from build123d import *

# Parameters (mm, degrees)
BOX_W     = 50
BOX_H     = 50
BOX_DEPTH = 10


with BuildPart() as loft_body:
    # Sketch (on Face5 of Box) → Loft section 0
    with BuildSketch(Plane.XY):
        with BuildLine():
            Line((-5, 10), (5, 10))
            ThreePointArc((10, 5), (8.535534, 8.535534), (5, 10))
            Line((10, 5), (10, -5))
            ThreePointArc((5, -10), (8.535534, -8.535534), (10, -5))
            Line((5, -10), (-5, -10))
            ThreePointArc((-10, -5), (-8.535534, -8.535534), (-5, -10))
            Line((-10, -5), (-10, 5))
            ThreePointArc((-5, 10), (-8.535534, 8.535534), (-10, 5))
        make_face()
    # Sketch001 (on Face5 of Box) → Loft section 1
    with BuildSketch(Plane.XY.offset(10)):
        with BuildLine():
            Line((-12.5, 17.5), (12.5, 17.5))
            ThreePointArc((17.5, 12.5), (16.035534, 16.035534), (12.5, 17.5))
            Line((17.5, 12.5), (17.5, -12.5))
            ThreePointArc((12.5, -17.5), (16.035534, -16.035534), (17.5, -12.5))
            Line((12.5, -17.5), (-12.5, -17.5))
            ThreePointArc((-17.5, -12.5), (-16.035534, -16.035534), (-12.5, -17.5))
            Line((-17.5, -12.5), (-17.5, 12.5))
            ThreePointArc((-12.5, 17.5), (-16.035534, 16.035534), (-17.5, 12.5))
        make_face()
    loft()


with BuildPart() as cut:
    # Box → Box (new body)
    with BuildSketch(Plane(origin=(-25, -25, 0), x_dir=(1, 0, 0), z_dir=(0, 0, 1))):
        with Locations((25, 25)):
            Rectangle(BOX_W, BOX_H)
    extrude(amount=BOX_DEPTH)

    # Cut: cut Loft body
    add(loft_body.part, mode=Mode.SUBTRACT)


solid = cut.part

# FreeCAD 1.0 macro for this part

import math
import FreeCAD as App
import Part
import Sketcher
from FreeCAD import Vector
Q = App.Units.Quantity

doc = App.newDocument("Part")
params = doc.addObject("Spreadsheet::Sheet", "Params")
for row, (alias, value) in enumerate([
    ("sketch1_radius", "5 mm"),
    ("sketch1_width", "10 mm"),
    ("sketch2_radius", "5 mm"),
    ("sketch2_width", "25 mm"),
    ("sketch3_width", "50 mm"),
    ("pad1_length", "10 mm"),
], start=1):
    params.set(f"A{row}", alias)
    params.set(f"B{row}", "=" + value)
    params.setAlias(f"B{row}", alias)

body = doc.addObject("PartDesign::Body", "Body")

sketch1 = body.newObject("Sketcher::SketchObject", "Sketch")
sketch1.AttachmentSupport = (doc.getObject("XY_Plane"), [""])
sketch1.MapMode = "FlatFace"
sketch1.addGeometry(Part.LineSegment(Vector(5, 10, 0), Vector(-5, 10, 0)), False)
sketch1.addGeometry(Part.ArcOfCircle(Part.Circle(Vector(-5, 5, 0), Vector(0, 0, 1), 5), math.radians(89.999996), math.radians(180.000004)), False)
sketch1.addGeometry(Part.LineSegment(Vector(-10, 5, 0), Vector(-10, -5, 0)), False)
sketch1.addGeometry(Part.ArcOfCircle(Part.Circle(Vector(-5, -5, 0), Vector(0, 0, 1), 5), math.radians(179.999996), math.radians(270.000004)), False)
sketch1.addGeometry(Part.LineSegment(Vector(-5, -10, 0), Vector(5, -10, 0)), False)
sketch1.addGeometry(Part.ArcOfCircle(Part.Circle(Vector(5, -5, 0), Vector(0, 0, 1), 5), math.radians(-90.000004), math.radians(0.000004)), False)
sketch1.addGeometry(Part.LineSegment(Vector(10, -5, 0), Vector(10, 5, 0)), False)
sketch1.addGeometry(Part.ArcOfCircle(Part.Circle(Vector(5, 5, 0), Vector(0, 0, 1), 5), math.radians(-0.000004), math.radians(90.000004)), False)
sketch1.addConstraint(Sketcher.Constraint("Tangent", 0, 2, 1, 1))
sketch1.addConstraint(Sketcher.Constraint("Tangent", 1, 2, 2, 1))
sketch1.addConstraint(Sketcher.Constraint("Tangent", 2, 2, 3, 1))
sketch1.addConstraint(Sketcher.Constraint("Tangent", 3, 2, 4, 1))
sketch1.addConstraint(Sketcher.Constraint("Tangent", 4, 2, 5, 1))
sketch1.addConstraint(Sketcher.Constraint("Tangent", 5, 2, 6, 1))
sketch1.addConstraint(Sketcher.Constraint("Tangent", 6, 2, 7, 1))
sketch1.addConstraint(Sketcher.Constraint("Tangent", 7, 2, 0, 1))
sketch1.addConstraint(Sketcher.Constraint("Horizontal", 0))
sketch1.addConstraint(Sketcher.Constraint("Vertical", 2))
sketch1.addConstraint(Sketcher.Constraint("Horizontal", 4))
sketch1.addConstraint(Sketcher.Constraint("Vertical", 6))
sketch1.addConstraint(Sketcher.Constraint("Equal", 1, 3))
sketch1.addConstraint(Sketcher.Constraint("Equal", 3, 5))
sketch1.addConstraint(Sketcher.Constraint("Equal", 5, 7))
sketch1.addConstraint(Sketcher.Constraint("Symmetric", 1, 3, 5, 3, -1, 1))
sketch1.addConstraint(Sketcher.Constraint("Equal", 4, 2))
sketch1.addConstraint(Sketcher.Constraint("Radius", 1, Q("5 mm")))
sketch1.addConstraint(Sketcher.Constraint("DistanceX", 0, 2, 0, 1, Q("10 mm")))
sketch1.setExpression("Constraints[17]", "Params.sketch1_radius")
sketch1.setExpression("Constraints[18]", "Params.sketch1_width")

sketch2 = body.newObject("Sketcher::SketchObject", "Sketch001")
sketch2.AttachmentSupport = (doc.getObject("XY_Plane"), [""])
sketch2.MapMode = "FlatFace"
sketch2.AttachmentOffset = App.Placement(Vector(0, 0, 10), App.Rotation())
sketch2.addGeometry(Part.LineSegment(Vector(12.5, 17.5, 0), Vector(-12.5, 17.5, 0)), False)
sketch2.addGeometry(Part.ArcOfCircle(Part.Circle(Vector(-12.5, 12.5, 0), Vector(0, 0, 1), 5), math.radians(89.999996), math.radians(180.000004)), False)
sketch2.addGeometry(Part.LineSegment(Vector(-17.5, 12.5, 0), Vector(-17.5, -12.5, 0)), False)
sketch2.addGeometry(Part.ArcOfCircle(Part.Circle(Vector(-12.5, -12.5, 0), Vector(0, 0, 1), 5), math.radians(179.999996), math.radians(270.000004)), False)
sketch2.addGeometry(Part.LineSegment(Vector(-12.5, -17.5, 0), Vector(12.5, -17.5, 0)), False)
sketch2.addGeometry(Part.ArcOfCircle(Part.Circle(Vector(12.5, -12.5, 0), Vector(0, 0, 1), 5), math.radians(-90.000004), math.radians(0.000004)), False)
sketch2.addGeometry(Part.LineSegment(Vector(17.5, -12.5, 0), Vector(17.5, 12.5, 0)), False)
sketch2.addGeometry(Part.ArcOfCircle(Part.Circle(Vector(12.5, 12.5, 0), Vector(0, 0, 1), 5), math.radians(-0.000004), math.radians(90.000004)), False)
sketch2.addConstraint(Sketcher.Constraint("Tangent", 0, 2, 1, 1))
sketch2.addConstraint(Sketcher.Constraint("Tangent", 1, 2, 2, 1))
sketch2.addConstraint(Sketcher.Constraint("Tangent", 2, 2, 3, 1))
sketch2.addConstraint(Sketcher.Constraint("Tangent", 3, 2, 4, 1))
sketch2.addConstraint(Sketcher.Constraint("Tangent", 4, 2, 5, 1))
sketch2.addConstraint(Sketcher.Constraint("Tangent", 5, 2, 6, 1))
sketch2.addConstraint(Sketcher.Constraint("Tangent", 6, 2, 7, 1))
sketch2.addConstraint(Sketcher.Constraint("Tangent", 7, 2, 0, 1))
sketch2.addConstraint(Sketcher.Constraint("Horizontal", 0))
sketch2.addConstraint(Sketcher.Constraint("Vertical", 2))
sketch2.addConstraint(Sketcher.Constraint("Horizontal", 4))
sketch2.addConstraint(Sketcher.Constraint("Vertical", 6))
sketch2.addConstraint(Sketcher.Constraint("Equal", 1, 3))
sketch2.addConstraint(Sketcher.Constraint("Equal", 3, 5))
sketch2.addConstraint(Sketcher.Constraint("Equal", 5, 7))
sketch2.addConstraint(Sketcher.Constraint("Symmetric", 1, 3, 5, 3, -1, 1))
sketch2.addConstraint(Sketcher.Constraint("Equal", 4, 2))
sketch2.addConstraint(Sketcher.Constraint("Radius", 1, Q("5 mm")))
sketch2.addConstraint(Sketcher.Constraint("DistanceX", 0, 2, 0, 1, Q("25 mm")))
sketch2.setExpression("Constraints[17]", "Params.sketch2_radius")
sketch2.setExpression("Constraints[18]", "Params.sketch2_width")

additiveloft = body.newObject("PartDesign::AdditiveLoft", "AdditiveLoft")
additiveloft.Profile = sketch1
additiveloft.Sections = [sketch2]
body2 = doc.addObject("PartDesign::Body", "Body001")

sketch3 = body2.newObject("Sketcher::SketchObject", "Sketch002")
sketch3.AttachmentSupport = (doc.getObject("XY_Plane001"), [""])
sketch3.MapMode = "FlatFace"
sketch3.addGeometry(Part.LineSegment(Vector(-25, 25, 0), Vector(-25, -25, 0)), False)
sketch3.addGeometry(Part.LineSegment(Vector(-25, -25, 0), Vector(25, -25, 0)), False)
sketch3.addGeometry(Part.LineSegment(Vector(25, -25, 0), Vector(25, 25, 0)), False)
sketch3.addGeometry(Part.LineSegment(Vector(25, 25, 0), Vector(-25, 25, 0)), False)
sketch3.addConstraint(Sketcher.Constraint("Coincident", 0, 2, 1, 1))
sketch3.addConstraint(Sketcher.Constraint("Coincident", 1, 2, 2, 1))
sketch3.addConstraint(Sketcher.Constraint("Coincident", 2, 2, 3, 1))
sketch3.addConstraint(Sketcher.Constraint("Coincident", 3, 2, 0, 1))
sketch3.addConstraint(Sketcher.Constraint("Vertical", 0))
sketch3.addConstraint(Sketcher.Constraint("Horizontal", 1))
sketch3.addConstraint(Sketcher.Constraint("Vertical", 2))
sketch3.addConstraint(Sketcher.Constraint("Horizontal", 3))
sketch3.addConstraint(Sketcher.Constraint("Symmetric", 0, 2, 2, 2, -1, 1))
sketch3.addConstraint(Sketcher.Constraint("Equal", 3, 0))
sketch3.addConstraint(Sketcher.Constraint("DistanceX", 1, 1, 1, 2, Q("50 mm")))
sketch3.setExpression("Constraints[10]", "Params.sketch3_width")
pad1 = body2.newObject("PartDesign::Pad", "Pad")
pad1.Profile = sketch3
pad1.setExpression("Length", "Params.pad1_length")
doc.recompute()

boolean = body2.newObject("PartDesign::Boolean", "Boolean")
boolean.Type = "Cut"
boolean.addObjects([body])

doc.recompute()
